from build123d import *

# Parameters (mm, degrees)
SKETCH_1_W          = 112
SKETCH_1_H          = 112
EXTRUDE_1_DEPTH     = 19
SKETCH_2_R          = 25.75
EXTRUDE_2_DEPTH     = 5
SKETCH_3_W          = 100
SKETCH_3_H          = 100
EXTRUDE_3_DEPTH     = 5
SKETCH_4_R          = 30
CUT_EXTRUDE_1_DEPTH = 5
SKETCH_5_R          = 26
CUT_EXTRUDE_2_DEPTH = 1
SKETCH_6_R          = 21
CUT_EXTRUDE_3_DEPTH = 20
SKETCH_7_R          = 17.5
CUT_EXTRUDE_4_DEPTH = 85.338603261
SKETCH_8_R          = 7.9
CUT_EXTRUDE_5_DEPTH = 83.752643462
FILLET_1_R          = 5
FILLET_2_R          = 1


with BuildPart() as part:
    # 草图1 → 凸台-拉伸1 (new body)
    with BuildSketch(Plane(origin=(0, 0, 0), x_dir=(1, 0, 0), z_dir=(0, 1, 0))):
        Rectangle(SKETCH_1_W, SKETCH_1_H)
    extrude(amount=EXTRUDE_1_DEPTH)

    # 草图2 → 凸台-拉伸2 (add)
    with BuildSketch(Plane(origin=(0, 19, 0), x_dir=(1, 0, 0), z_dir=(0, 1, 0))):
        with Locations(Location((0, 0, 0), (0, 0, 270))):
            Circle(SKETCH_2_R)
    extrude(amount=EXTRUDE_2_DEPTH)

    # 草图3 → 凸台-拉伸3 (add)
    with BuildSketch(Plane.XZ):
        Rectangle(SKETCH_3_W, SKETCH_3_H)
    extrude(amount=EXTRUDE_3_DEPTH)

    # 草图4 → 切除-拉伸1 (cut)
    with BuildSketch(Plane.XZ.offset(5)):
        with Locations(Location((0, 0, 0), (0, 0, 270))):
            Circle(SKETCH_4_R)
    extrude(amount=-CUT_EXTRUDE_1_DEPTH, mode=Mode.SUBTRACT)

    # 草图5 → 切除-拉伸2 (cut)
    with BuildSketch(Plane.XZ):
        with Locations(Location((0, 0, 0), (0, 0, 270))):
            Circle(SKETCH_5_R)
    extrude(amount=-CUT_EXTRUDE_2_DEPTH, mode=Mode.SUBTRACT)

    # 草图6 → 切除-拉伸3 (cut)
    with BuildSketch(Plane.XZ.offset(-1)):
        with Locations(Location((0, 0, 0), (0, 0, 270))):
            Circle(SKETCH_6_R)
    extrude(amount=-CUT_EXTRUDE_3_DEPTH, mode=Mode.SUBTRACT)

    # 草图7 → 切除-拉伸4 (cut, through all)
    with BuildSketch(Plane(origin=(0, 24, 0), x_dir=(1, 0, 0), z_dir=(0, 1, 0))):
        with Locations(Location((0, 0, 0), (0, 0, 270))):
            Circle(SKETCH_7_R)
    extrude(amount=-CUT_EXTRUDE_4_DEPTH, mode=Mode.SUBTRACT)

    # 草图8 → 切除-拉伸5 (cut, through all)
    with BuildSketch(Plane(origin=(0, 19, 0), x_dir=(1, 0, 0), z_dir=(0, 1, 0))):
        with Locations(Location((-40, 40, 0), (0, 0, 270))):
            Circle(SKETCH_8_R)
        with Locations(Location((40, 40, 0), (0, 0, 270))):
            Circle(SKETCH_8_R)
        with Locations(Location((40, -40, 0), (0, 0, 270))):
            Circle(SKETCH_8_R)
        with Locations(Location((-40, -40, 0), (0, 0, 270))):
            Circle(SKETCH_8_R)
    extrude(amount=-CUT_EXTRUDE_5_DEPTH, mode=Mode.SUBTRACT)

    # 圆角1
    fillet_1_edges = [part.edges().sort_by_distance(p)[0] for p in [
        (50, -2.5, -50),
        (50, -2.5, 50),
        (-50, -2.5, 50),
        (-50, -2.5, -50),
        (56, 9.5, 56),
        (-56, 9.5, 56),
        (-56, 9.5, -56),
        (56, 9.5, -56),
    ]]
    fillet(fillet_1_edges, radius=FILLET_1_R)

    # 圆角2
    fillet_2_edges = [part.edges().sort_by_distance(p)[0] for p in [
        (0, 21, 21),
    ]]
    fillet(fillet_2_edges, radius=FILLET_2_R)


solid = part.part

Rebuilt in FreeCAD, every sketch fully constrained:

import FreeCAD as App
import Part
import Sketcher
Q = App.Units.Quantity


def edges_at(feature, points):
    """Names of the edges that pass closest to the given points."""
    edges = feature.Shape.Edges
    near = lambda p: min(range(len(edges)), key=lambda i: edges[i].distToShape(Part.Vertex(*p))[0])
    return sorted({f"Edge{near(p) + 1}" for p in points})

doc = App.newDocument("Part")
body = doc.addObject("PartDesign::Body", "Body")

# Sketch on XZ plane
sketch1 = body.newObject("Sketcher::SketchObject", "Sketch")
sketch1.AttachmentSupport = (doc.getObject("XZ_Plane"), [""])
sketch1.MapMode = "FlatFace"
sketch1.addGeometry([
    Part.LineSegment(App.Vector(-56, -56, 0), App.Vector(-56, 56, 0)),
    Part.LineSegment(App.Vector(-56, 56, 0), App.Vector(56, 56, 0)),
    Part.LineSegment(App.Vector(56, 56, 0), App.Vector(56, -56, 0)),
    Part.LineSegment(App.Vector(56, -56, 0), App.Vector(-56, -56, 0)),
], False)
sketch1.addConstraint([
    Sketcher.Constraint("Coincident", 0, 2, 1, 1),
    Sketcher.Constraint("Coincident", 1, 2, 2, 1),
    Sketcher.Constraint("Coincident", 2, 2, 3, 1),
    Sketcher.Constraint("Coincident", 3, 2, 0, 1),
    Sketcher.Constraint("Vertical", 0),
    Sketcher.Constraint("Horizontal", 1),
    Sketcher.Constraint("Vertical", 2),
    Sketcher.Constraint("Horizontal", 3),
    Sketcher.Constraint("Symmetric", 0, 2, 2, 2, -1, 1),
    Sketcher.Constraint("Equal", 3, 0),
    Sketcher.Constraint("DistanceX", 1, 1, 1, 2, Q("112 mm")),
])
pad1 = body.newObject("PartDesign::Pad", "Pad")
pad1.Profile = sketch1
pad1.Length = 19
pad1.Reversed = True

# Sketch on XZ plane
sketch2 = body.newObject("Sketcher::SketchObject", "Sketch001")
sketch2.AttachmentSupport = (doc.getObject("XZ_Plane"), [""])
sketch2.MapMode = "FlatFace"
sketch2.AttachmentOffset = App.Placement(App.Vector(0, 0, -19), App.Rotation())
sketch2.addGeometry(Part.Circle(App.Vector(0, 0, 0), App.Vector(0, 0, 1), 26), False)
sketch2.addConstraint([
    Sketcher.Constraint("Coincident", 0, 3, -1, 1),
    Sketcher.Constraint("Diameter", 0, Q("51.5 mm")),
])
pad2 = body.newObject("PartDesign::Pad", "Pad001")
pad2.Profile = sketch2
pad2.Length = 5
pad2.Reversed = True

# Sketch on XZ plane
sketch3 = body.newObject("Sketcher::SketchObject", "Sketch002")
sketch3.AttachmentSupport = (doc.getObject("XZ_Plane"), [""])
sketch3.MapMode = "FlatFace"
sketch3.addGeometry([
    Part.LineSegment(App.Vector(-50, 50, 0), App.Vector(-50, -50, 0)),
    Part.LineSegment(App.Vector(-50, -50, 0), App.Vector(50, -50, 0)),
    Part.LineSegment(App.Vector(50, -50, 0), App.Vector(50, 50, 0)),
    Part.LineSegment(App.Vector(50, 50, 0), App.Vector(-50, 50, 0)),
], False)
sketch3.addConstraint([
    Sketcher.Constraint("Coincident", 0, 2, 1, 1),
    Sketcher.Constraint("Coincident", 1, 2, 2, 1),
    Sketcher.Constraint("Coincident", 2, 2, 3, 1),
    Sketcher.Constraint("Coincident", 3, 2, 0, 1),
    Sketcher.Constraint("Vertical", 0),
    Sketcher.Constraint("Horizontal", 1),
    Sketcher.Constraint("Vertical", 2),
    Sketcher.Constraint("Horizontal", 3),
    Sketcher.Constraint("Symmetric", 0, 2, 2, 2, -1, 1),
    Sketcher.Constraint("Equal", 3, 0),
    Sketcher.Constraint("DistanceX", 1, 1, 1, 2, Q("100 mm")),
])
pad3 = body.newObject("PartDesign::Pad", "Pad002")
pad3.Profile = sketch3
pad3.Length = 5

# Sketch on XZ plane
sketch4 = body.newObject("Sketcher::SketchObject", "Sketch003")
sketch4.AttachmentSupport = (doc.getObject("XZ_Plane"), [""])
sketch4.MapMode = "FlatFace"
sketch4.AttachmentOffset = App.Placement(App.Vector(0, 0, 5), App.Rotation())
sketch4.addGeometry(Part.Circle(App.Vector(0, 0, 0), App.Vector(0, 0, 1), 30), False)
sketch4.addConstraint([
    Sketcher.Constraint("Coincident", 0, 3, -1, 1),
    Sketcher.Constraint("Diameter", 0, Q("60 mm")),
])
pocket1 = body.newObject("PartDesign::Pocket", "Pocket")
pocket1.Profile = sketch4
pocket1.Length = 5

# Sketch on XZ plane
sketch5 = body.newObject("Sketcher::SketchObject", "Sketch004")
sketch5.AttachmentSupport = (doc.getObject("XZ_Plane"), [""])
sketch5.MapMode = "FlatFace"
sketch5.addGeometry(Part.Circle(App.Vector(0, 0, 0), App.Vector(0, 0, 1), 26), False)
sketch5.addConstraint([
    Sketcher.Constraint("Coincident", 0, 3, -1, 1),
    Sketcher.Constraint("Diameter", 0, Q("52 mm")),
])
pocket2 = body.newObject("PartDesign::Pocket", "Pocket001")
pocket2.Profile = sketch5
pocket2.Length = 1

# Sketch on XZ plane
sketch6 = body.newObject("Sketcher::SketchObject", "Sketch005")
sketch6.AttachmentSupport = (doc.getObject("XZ_Plane"), [""])
sketch6.MapMode = "FlatFace"
sketch6.AttachmentOffset = App.Placement(App.Vector(0, 0, -1), App.Rotation())
sketch6.addGeometry(Part.Circle(App.Vector(0, 0, 0), App.Vector(0, 0, 1), 21), False)
sketch6.addConstraint([
    Sketcher.Constraint("Coincident", 0, 3, -1, 1),
    Sketcher.Constraint("Diameter", 0, Q("42 mm")),
])
pocket3 = body.newObject("PartDesign::Pocket", "Pocket002")
pocket3.Profile = sketch6
pocket3.Length = 20

# Sketch on XZ plane
sketch7 = body.newObject("Sketcher::SketchObject", "Sketch006")
sketch7.AttachmentSupport = (doc.getObject("XZ_Plane"), [""])
sketch7.MapMode = "FlatFace"
sketch7.AttachmentOffset = App.Placement(App.Vector(0, 0, -24), App.Rotation())
sketch7.addGeometry(Part.Circle(App.Vector(0, 0, 0), App.Vector(0, 0, 1), 18), False)
sketch7.addConstraint([
    Sketcher.Constraint("Coincident", 0, 3, -1, 1),
    Sketcher.Constraint("Diameter", 0, Q("35 mm")),
])
pocket4 = body.newObject("PartDesign::Pocket", "Pocket003")
pocket4.Profile = sketch7
pocket4.Type = "ThroughAll"
pocket4.Reversed = True

# Sketch on XZ plane
sketch8 = body.newObject("Sketcher::SketchObject", "Sketch007")
sketch8.AttachmentSupport = (doc.getObject("XZ_Plane"), [""])
sketch8.MapMode = "FlatFace"
sketch8.AttachmentOffset = App.Placement(App.Vector(0, 0, -19), App.Rotation())
sketch8.addGeometry([
    Part.Circle(App.Vector(-40, -40, 0), App.Vector(0, 0, 1), 8),
    Part.Circle(App.Vector(40, -40, 0), App.Vector(0, 0, 1), 8),
    Part.Circle(App.Vector(40, 40, 0), App.Vector(0, 0, 1), 8),
    Part.Circle(App.Vector(-40, 40, 0), App.Vector(0, 0, 1), 8),
], False)
sketch8.addConstraint([
    Sketcher.Constraint("Equal", 0, 1),
    Sketcher.Constraint("Equal", 1, 2),
    Sketcher.Constraint("Equal", 2, 3),
    Sketcher.Constraint("Symmetric", 0, 3, 2, 3, -1, 1),
    Sketcher.Constraint("Symmetric", 1, 3, 3, 3, -1, 1),
    Sketcher.Constraint("Symmetric", 0, 3, 1, 3, -2),
    Sketcher.Constraint("Diameter", 0, Q("15.8 mm")),
    Sketcher.Constraint("DistanceX", 0, 3, -1, 1, Q("40 mm")),
    Sketcher.Constraint("DistanceY", 0, 3, -1, 1, Q("40 mm")),
])
pocket5 = body.newObject("PartDesign::Pocket", "Pocket004")
pocket5.Profile = sketch8
pocket5.Type = "ThroughAll"
pocket5.Reversed = True
doc.recompute()

fillet = body.newObject("PartDesign::Fillet", "Fillet")
fillet.Base = (pocket5, edges_at(pocket5, [
    (50, -2.5, -50),
    (50, -2.5, 50),
    (-50, -2.5, 50),
    (-50, -2.5, -50),
    (56, 9.5, 56),
    (-56, 9.5, 56),
    (-56, 9.5, -56),
    (56, 9.5, -56),
]))
fillet.Radius = 5
doc.recompute()

fillet2 = body.newObject("PartDesign::Fillet", "Fillet001")
fillet2.Base = (fillet, edges_at(fillet, [(0, 21, 21)]))
fillet2.Radius = 1

doc.recompute()
